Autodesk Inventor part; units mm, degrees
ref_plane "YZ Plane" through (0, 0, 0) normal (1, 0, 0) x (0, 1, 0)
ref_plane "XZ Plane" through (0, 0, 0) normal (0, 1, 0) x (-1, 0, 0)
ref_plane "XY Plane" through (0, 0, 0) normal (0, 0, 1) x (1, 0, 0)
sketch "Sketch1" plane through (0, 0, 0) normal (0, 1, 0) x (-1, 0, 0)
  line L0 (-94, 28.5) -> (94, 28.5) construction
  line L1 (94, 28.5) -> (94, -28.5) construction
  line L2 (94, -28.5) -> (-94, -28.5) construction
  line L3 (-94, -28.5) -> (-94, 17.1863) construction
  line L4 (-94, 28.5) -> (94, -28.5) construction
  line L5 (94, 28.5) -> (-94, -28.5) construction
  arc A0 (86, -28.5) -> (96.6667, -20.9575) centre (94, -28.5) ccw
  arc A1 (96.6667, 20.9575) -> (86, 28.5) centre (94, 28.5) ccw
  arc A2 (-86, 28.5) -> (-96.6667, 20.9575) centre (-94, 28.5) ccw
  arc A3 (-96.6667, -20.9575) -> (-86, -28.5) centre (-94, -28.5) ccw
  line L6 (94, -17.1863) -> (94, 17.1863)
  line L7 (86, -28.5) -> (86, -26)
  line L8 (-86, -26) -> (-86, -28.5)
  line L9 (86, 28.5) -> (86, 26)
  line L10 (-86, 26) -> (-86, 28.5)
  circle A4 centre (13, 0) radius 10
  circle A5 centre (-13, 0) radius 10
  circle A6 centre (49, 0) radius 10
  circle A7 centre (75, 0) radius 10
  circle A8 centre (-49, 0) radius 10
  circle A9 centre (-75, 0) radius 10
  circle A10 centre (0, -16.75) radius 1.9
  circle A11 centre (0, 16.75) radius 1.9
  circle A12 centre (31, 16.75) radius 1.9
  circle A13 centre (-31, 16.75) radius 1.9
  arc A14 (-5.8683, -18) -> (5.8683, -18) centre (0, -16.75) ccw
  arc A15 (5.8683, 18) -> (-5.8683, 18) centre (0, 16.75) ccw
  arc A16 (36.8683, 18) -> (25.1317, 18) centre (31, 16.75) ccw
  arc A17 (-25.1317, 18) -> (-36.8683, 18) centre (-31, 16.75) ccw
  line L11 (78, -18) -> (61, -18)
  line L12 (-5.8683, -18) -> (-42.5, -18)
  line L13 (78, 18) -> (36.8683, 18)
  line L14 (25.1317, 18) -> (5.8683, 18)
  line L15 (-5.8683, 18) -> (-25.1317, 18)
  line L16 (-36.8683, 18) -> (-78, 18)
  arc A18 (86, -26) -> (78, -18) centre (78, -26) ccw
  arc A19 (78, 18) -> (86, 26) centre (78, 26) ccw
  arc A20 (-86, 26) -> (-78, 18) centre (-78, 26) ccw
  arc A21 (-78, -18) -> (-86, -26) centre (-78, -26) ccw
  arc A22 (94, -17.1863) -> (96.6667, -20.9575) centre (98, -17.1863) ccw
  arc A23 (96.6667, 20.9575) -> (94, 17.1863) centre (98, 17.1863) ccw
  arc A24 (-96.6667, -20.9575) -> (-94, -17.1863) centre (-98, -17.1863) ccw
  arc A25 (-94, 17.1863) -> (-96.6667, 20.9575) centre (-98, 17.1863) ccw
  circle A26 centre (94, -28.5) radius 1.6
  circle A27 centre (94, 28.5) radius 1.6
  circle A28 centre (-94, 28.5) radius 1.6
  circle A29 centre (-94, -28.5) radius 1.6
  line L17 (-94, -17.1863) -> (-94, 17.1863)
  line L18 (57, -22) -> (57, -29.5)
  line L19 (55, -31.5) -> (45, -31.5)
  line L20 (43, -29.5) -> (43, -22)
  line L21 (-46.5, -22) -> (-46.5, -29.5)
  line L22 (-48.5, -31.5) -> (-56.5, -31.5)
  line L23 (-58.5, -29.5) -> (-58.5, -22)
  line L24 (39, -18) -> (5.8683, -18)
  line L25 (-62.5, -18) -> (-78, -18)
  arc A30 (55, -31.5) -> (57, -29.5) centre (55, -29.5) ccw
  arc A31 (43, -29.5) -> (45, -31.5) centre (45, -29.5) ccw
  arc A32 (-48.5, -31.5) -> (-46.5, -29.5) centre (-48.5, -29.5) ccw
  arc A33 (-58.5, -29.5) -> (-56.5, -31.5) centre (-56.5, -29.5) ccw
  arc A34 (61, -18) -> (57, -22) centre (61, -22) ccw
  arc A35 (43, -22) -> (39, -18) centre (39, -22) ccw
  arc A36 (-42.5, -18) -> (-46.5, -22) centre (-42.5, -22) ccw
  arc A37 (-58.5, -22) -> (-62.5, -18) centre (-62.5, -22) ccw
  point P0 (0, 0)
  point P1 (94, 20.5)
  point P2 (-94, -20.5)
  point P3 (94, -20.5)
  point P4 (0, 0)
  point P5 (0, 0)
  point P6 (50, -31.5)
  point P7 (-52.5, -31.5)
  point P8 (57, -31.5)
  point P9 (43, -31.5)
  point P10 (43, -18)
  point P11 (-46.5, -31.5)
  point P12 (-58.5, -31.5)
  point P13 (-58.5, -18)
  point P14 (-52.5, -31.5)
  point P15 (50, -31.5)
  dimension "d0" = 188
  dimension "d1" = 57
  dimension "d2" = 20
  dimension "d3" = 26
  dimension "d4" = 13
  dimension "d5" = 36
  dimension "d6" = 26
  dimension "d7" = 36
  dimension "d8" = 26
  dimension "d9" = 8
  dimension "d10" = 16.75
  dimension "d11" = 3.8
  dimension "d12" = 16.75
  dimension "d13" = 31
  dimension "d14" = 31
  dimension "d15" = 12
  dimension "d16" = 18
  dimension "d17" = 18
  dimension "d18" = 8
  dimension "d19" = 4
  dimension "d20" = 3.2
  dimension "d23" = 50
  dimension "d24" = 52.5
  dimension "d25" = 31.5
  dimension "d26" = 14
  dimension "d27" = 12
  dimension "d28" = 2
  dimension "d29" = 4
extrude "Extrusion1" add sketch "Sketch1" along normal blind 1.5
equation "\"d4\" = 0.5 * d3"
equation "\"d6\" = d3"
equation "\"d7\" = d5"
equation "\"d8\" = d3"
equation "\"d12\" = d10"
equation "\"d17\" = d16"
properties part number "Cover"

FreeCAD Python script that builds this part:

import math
import FreeCAD as App
import Part
import Sketcher

V = App.Vector
Q = App.Units.Quantity

doc = App.newDocument("Part")
body = doc.addObject("PartDesign::Body", "Body")

sketch1 = body.newObject("Sketcher::SketchObject", "Sketch")
sketch1.AttachmentSupport = (doc.getObject("XZ_Plane"), [""])
sketch1.MapMode = "FlatFace"
sketch1.addGeometry(Part.LineSegment(V(-86, -26, 0), V(-86, -28.5, 0)), False)
sketch1.addGeometry(Part.ArcOfCircle(Part.Circle(V(-94, -28.5, 0), V(0, 0, 1), 8), math.radians(109.47138), math.radians(360)), False)
sketch1.addGeometry(Part.ArcOfCircle(Part.Circle(V(-98, -17.1863, 0), V(0, 0, 1), 4), math.radians(-70.529057), math.radians(0)), False)
sketch1.addGeometry(Part.LineSegment(V(-94, -17.1863, 0), V(-94, 17.1863, 0)), False)
sketch1.addGeometry(Part.ArcOfCircle(Part.Circle(V(-98, 17.1863, 0), V(0, 0, 1), 3.999955), math.radians(0), math.radians(70.529057)), False)
sketch1.addGeometry(Part.ArcOfCircle(Part.Circle(V(-94, 28.5, 0), V(0, 0, 1), 8.000037), math.radians(0), math.radians(250.52862)), False)
sketch1.addGeometry(Part.LineSegment(V(-86, 28.5, 0), V(-86, 26, 0)), False)
sketch1.addGeometry(Part.ArcOfCircle(Part.Circle(V(-78, 26, 0), V(0, 0, 1), 8), math.radians(180), math.radians(270)), False)
sketch1.addGeometry(Part.LineSegment(V(-78, 18, 0), V(-36.8683, 18, 0)), False)
sketch1.addGeometry(Part.ArcOfCircle(Part.Circle(V(-31, 16.75, 0), V(0, 0, 1), 5.999954), math.radians(12.024793), math.radians(167.975207)), False)
sketch1.addGeometry(Part.LineSegment(V(-25.1317, 18, 0), V(-5.8683, 18, 0)), False)
sketch1.addGeometry(Part.ArcOfCircle(Part.Circle(V(0, 16.75, 0), V(0, 0, 1), 5.999954), math.radians(12.024793), math.radians(167.975207)), False)
sketch1.addGeometry(Part.LineSegment(V(5.8683, 18, 0), V(25.1317, 18, 0)), False)
sketch1.addGeometry(Part.ArcOfCircle(Part.Circle(V(31, 16.75, 0), V(0, 0, 1), 5.999954), math.radians(12.024793), math.radians(167.975207)), False)
sketch1.addGeometry(Part.LineSegment(V(36.8683, 18, 0), V(78, 18, 0)), False)
sketch1.addGeometry(Part.ArcOfCircle(Part.Circle(V(78, 26, 0), V(0, 0, 1), 8), math.radians(-90), math.radians(0)), False)
sketch1.addGeometry(Part.LineSegment(V(86, 26, 0), V(86, 28.5, 0)), False)
sketch1.addGeometry(Part.ArcOfCircle(Part.Circle(V(94, 28.5, 0), V(0, 0, 1), 8), math.radians(-70.52862), math.radians(180)), False)
sketch1.addGeometry(Part.ArcOfCircle(Part.Circle(V(98, 17.1863, 0), V(0, 0, 1), 4), math.radians(109.470943), math.radians(180)), False)
sketch1.addGeometry(Part.LineSegment(V(94, 17.1863, 0), V(94, -17.1863, 0)), False)
sketch1.addGeometry(Part.ArcOfCircle(Part.Circle(V(98, -17.1863, 0), V(0, 0, 1), 3.999955), math.radians(180), math.radians(250.529057)), False)
sketch1.addGeometry(Part.ArcOfCircle(Part.Circle(V(94, -28.5, 0), V(0, 0, 1), 8.000037), math.radians(180), math.radians(430.52862)), False)
sketch1.addGeometry(Part.LineSegment(V(86, -28.5, 0), V(86, -26, 0)), False)
sketch1.addGeometry(Part.ArcOfCircle(Part.Circle(V(78, -26, 0), V(0, 0, 1), 8), math.radians(0), math.radians(90)), False)
sketch1.addGeometry(Part.LineSegment(V(78, -18, 0), V(62.5, -18, 0)), False)
sketch1.addGeometry(Part.ArcOfCircle(Part.Circle(V(62.5, -22, 0), V(0, 0, 1), 4), math.radians(90), math.radians(180)), False)
sketch1.addGeometry(Part.LineSegment(V(58.5, -22, 0), V(58.5, -29.5, 0)), False)
sketch1.addGeometry(Part.ArcOfCircle(Part.Circle(V(56.5, -29.5, 0), V(0, 0, 1), 2), math.radians(-90), math.radians(0)), False)
sketch1.addGeometry(Part.LineSegment(V(56.5, -31.5, 0), V(48.5, -31.5, 0)), False)
sketch1.addGeometry(Part.ArcOfCircle(Part.Circle(V(48.5, -29.5, 0), V(0, 0, 1), 2), math.radians(180), math.radians(270)), False)
sketch1.addGeometry(Part.LineSegment(V(46.5, -29.5, 0), V(46.5, -22, 0)), False)
sketch1.addGeometry(Part.ArcOfCircle(Part.Circle(V(42.5, -22, 0), V(0, 0, 1), 4), math.radians(0), math.radians(90)), False)
sketch1.addGeometry(Part.LineSegment(V(42.5, -18, 0), V(5.8683, -18, 0)), False)
sketch1.addGeometry(Part.ArcOfCircle(Part.Circle(V(0, -16.75, 0), V(0, 0, 1), 5.999954), math.radians(-167.975207), math.radians(-12.024793)), False)
sketch1.addGeometry(Part.LineSegment(V(-5.8683, -18, 0), V(-39, -18, 0)), False)
sketch1.addGeometry(Part.ArcOfCircle(Part.Circle(V(-39, -22, 0), V(0, 0, 1), 4), math.radians(90), math.radians(180)), False)
sketch1.addGeometry(Part.LineSegment(V(-43, -22, 0), V(-43, -29.5, 0)), False)
sketch1.addGeometry(Part.ArcOfCircle(Part.Circle(V(-45, -29.5, 0), V(0, 0, 1), 2), math.radians(-90), math.radians(0)), False)
sketch1.addGeometry(Part.LineSegment(V(-45, -31.5, 0), V(-55, -31.5, 0)), False)
sketch1.addGeometry(Part.ArcOfCircle(Part.Circle(V(-55, -29.5, 0), V(0, 0, 1), 2), math.radians(180), math.radians(270)), False)
sketch1.addGeometry(Part.LineSegment(V(-57, -29.5, 0), V(-57, -22, 0)), False)
sketch1.addGeometry(Part.ArcOfCircle(Part.Circle(V(-61, -22, 0), V(0, 0, 1), 4), math.radians(0), math.radians(90)), False)
sketch1.addGeometry(Part.LineSegment(V(-61, -18, 0), V(-78, -18, 0)), False)
sketch1.addGeometry(Part.ArcOfCircle(Part.Circle(V(-78, -26, 0), V(0, 0, 1), 8), math.radians(90), math.radians(180)), False)
sketch1.addGeometry(Part.Circle(V(94, -28.5, 0), V(0, 0, 1), 1.6), False)
sketch1.addGeometry(Part.Circle(V(-94, -28.5, 0), V(0, 0, 1), 1.6), False)
sketch1.addGeometry(Part.Circle(V(0, -16.75, 0), V(0, 0, 1), 1.9), False)
sketch1.addGeometry(Part.Circle(V(75, 0, 0), V(0, 0, 1), 10), False)
sketch1.addGeometry(Part.Circle(V(49, 0, 0), V(0, 0, 1), 10), False)
sketch1.addGeometry(Part.Circle(V(13, 0, 0), V(0, 0, 1), 10), False)
sketch1.addGeometry(Part.Circle(V(31, 16.75, 0), V(0, 0, 1), 1.9), False)
sketch1.addGeometry(Part.Circle(V(94, 28.5, 0), V(0, 0, 1), 1.6), False)
sketch1.addGeometry(Part.Circle(V(-13, 0, 0), V(0, 0, 1), 10), False)
sketch1.addGeometry(Part.Circle(V(-49, 0, 0), V(0, 0, 1), 10), False)
sketch1.addGeometry(Part.Circle(V(0, 16.75, 0), V(0, 0, 1), 1.9), False)
sketch1.addGeometry(Part.Circle(V(-31, 16.75, 0), V(0, 0, 1), 1.9), False)
sketch1.addGeometry(Part.Circle(V(-75, 0, 0), V(0, 0, 1), 10), False)
sketch1.addGeometry(Part.Circle(V(-94, 28.5, 0), V(0, 0, 1), 1.6), False)
sketch1.addConstraint(Sketcher.Constraint("Tangent", 0, 2, 1, 2))
sketch1.addConstraint(Sketcher.Constraint("Tangent", 1, 1, 2, 1))
sketch1.addConstraint(Sketcher.Constraint("Tangent", 2, 2, 3, 1))
sketch1.addConstraint(Sketcher.Constraint("Tangent", 3, 2, 4, 1))
sketch1.addConstraint(Sketcher.Constraint("Tangent", 4, 2, 5, 2))
sketch1.addConstraint(Sketcher.Constraint("Tangent", 5, 1, 6, 1))
sketch1.addConstraint(Sketcher.Constraint("Tangent", 6, 2, 7, 1))
sketch1.addConstraint(Sketcher.Constraint("Tangent", 7, 2, 8, 1))
sketch1.addConstraint(Sketcher.Constraint("Coincident", 8, 2, 9, 2))
sketch1.addConstraint(Sketcher.Constraint("Coincident", 9, 1, 10, 1))
sketch1.addConstraint(Sketcher.Constraint("Coincident", 10, 2, 11, 2))
sketch1.addConstraint(Sketcher.Constraint("Coincident", 11, 1, 12, 1))
sketch1.addConstraint(Sketcher.Constraint("Coincident", 12, 2, 13, 2))
sketch1.addConstraint(Sketcher.Constraint("Coincident", 13, 1, 14, 1))
sketch1.addConstraint(Sketcher.Constraint("Tangent", 14, 2, 15, 1))
sketch1.addConstraint(Sketcher.Constraint("Tangent", 15, 2, 16, 1))
sketch1.addConstraint(Sketcher.Constraint("Tangent", 16, 2, 17, 2))
sketch1.addConstraint(Sketcher.Constraint("Tangent", 17, 1, 18, 1))
sketch1.addConstraint(Sketcher.Constraint("Tangent", 18, 2, 19, 1))
sketch1.addConstraint(Sketcher.Constraint("Tangent", 19, 2, 20, 1))
sketch1.addConstraint(Sketcher.Constraint("Tangent", 20, 2, 21, 2))
sketch1.addConstraint(Sketcher.Constraint("Tangent", 21, 1, 22, 1))
sketch1.addConstraint(Sketcher.Constraint("Tangent", 22, 2, 23, 1))
sketch1.addConstraint(Sketcher.Constraint("Tangent", 23, 2, 24, 1))
sketch1.addConstraint(Sketcher.Constraint("Tangent", 24, 2, 25, 1))
sketch1.addConstraint(Sketcher.Constraint("Tangent", 25, 2, 26, 1))
sketch1.addConstraint(Sketcher.Constraint("Tangent", 26, 2, 27, 2))
sketch1.addConstraint(Sketcher.Constraint("Tangent", 27, 1, 28, 1))
sketch1.addConstraint(Sketcher.Constraint("Tangent", 28, 2, 29, 2))
sketch1.addConstraint(Sketcher.Constraint("Tangent", 29, 1, 30, 1))
sketch1.addConstraint(Sketcher.Constraint("Tangent", 30, 2, 31, 1))
sketch1.addConstraint(Sketcher.Constraint("Tangent", 31, 2, 32, 1))
sketch1.addConstraint(Sketcher.Constraint("Coincident", 32, 2, 33, 2))
sketch1.addConstraint(Sketcher.Constraint("Coincident", 33, 1, 34, 1))
sketch1.addConstraint(Sketcher.Constraint("Tangent", 34, 2, 35, 1))
sketch1.addConstraint(Sketcher.Constraint("Tangent", 35, 2, 36, 1))
sketch1.addConstraint(Sketcher.Constraint("Tangent", 36, 2, 37, 2))
sketch1.addConstraint(Sketcher.Constraint("Tangent", 37, 1, 38, 1))
sketch1.addConstraint(Sketcher.Constraint("Tangent", 38, 2, 39, 2))
sketch1.addConstraint(Sketcher.Constraint("Tangent", 39, 1, 40, 1))
sketch1.addConstraint(Sketcher.Constraint("Tangent", 40, 2, 41, 1))
sketch1.addConstraint(Sketcher.Constraint("Tangent", 41, 2, 42, 1))
sketch1.addConstraint(Sketcher.Constraint("Tangent", 42, 2, 43, 1))
sketch1.addConstraint(Sketcher.Constraint("Tangent", 43, 2, 0, 1))
sketch1.addConstraint(Sketcher.Constraint("Vertical", 0))
sketch1.addConstraint(Sketcher.Constraint("Vertical", 3))
sketch1.addConstraint(Sketcher.Constraint("Vertical", 6))
sketch1.addConstraint(Sketcher.Constraint("Horizontal", 8))
sketch1.addConstraint(Sketcher.Constraint("Horizontal", 10))
sketch1.addConstraint(Sketcher.Constraint("Horizontal", 12))
sketch1.addConstraint(Sketcher.Constraint("Horizontal", 14))
sketch1.addConstraint(Sketcher.Constraint("Vertical", 16))
sketch1.addConstraint(Sketcher.Constraint("Vertical", 19))
sketch1.addConstraint(Sketcher.Constraint("Vertical", 22))
sketch1.addConstraint(Sketcher.Constraint("Horizontal", 24))
sketch1.addConstraint(Sketcher.Constraint("Vertical", 26))
sketch1.addConstraint(Sketcher.Constraint("Horizontal", 28))
sketch1.addConstraint(Sketcher.Constraint("Vertical", 30))
sketch1.addConstraint(Sketcher.Constraint("Horizontal", 32))
sketch1.addConstraint(Sketcher.Constraint("Horizontal", 34))
sketch1.addConstraint(Sketcher.Constraint("Vertical", 36))
sketch1.addConstraint(Sketcher.Constraint("Horizontal", 38))
sketch1.addConstraint(Sketcher.Constraint("Vertical", 40))
sketch1.addConstraint(Sketcher.Constraint("Horizontal", 42))
sketch1.addConstraint(Sketcher.Constraint("Coincident", 44, 3, 21, 3))
sketch1.addConstraint(Sketcher.Constraint("Coincident", 45, 3, 1, 3))
sketch1.addConstraint(Sketcher.Constraint("Coincident", 46, 3, 33, 3))
sketch1.addConstraint(Sketcher.Constraint("Coincident", 50, 3, 13, 3))
sketch1.addConstraint(Sketcher.Constraint("Coincident", 51, 3, 17, 3))
sketch1.addConstraint(Sketcher.Constraint("Coincident", 54, 3, 11, 3))
sketch1.addConstraint(Sketcher.Constraint("Coincident", 55, 3, 9, 3))
sketch1.addConstraint(Sketcher.Constraint("Coincident", 57, 3, 5, 3))
sketch1.addConstraint(Sketcher.Constraint("Equal", 2, 4))
sketch1.addConstraint(Sketcher.Constraint("Equal", 1, 5))
sketch1.addConstraint(Sketcher.Constraint("Equal", 5, 7))
sketch1.addConstraint(Sketcher.Constraint("Equal", 9, 11))
sketch1.addConstraint(Sketcher.Constraint("Equal", 11, 13))
sketch1.addConstraint(Sketcher.Constraint("Equal", 7, 15))
sketch1.addConstraint(Sketcher.Constraint("Equal", 15, 17))
sketch1.addConstraint(Sketcher.Constraint("Equal", 4, 18))
sketch1.addConstraint(Sketcher.Constraint("Equal", 18, 20))
sketch1.addConstraint(Sketcher.Constraint("Equal", 17, 21))
sketch1.addConstraint(Sketcher.Constraint("Equal", 21, 23))
sketch1.addConstraint(Sketcher.Constraint("Equal", 20, 25))
sketch1.addConstraint(Sketcher.Constraint("Equal", 27, 29))
sketch1.addConstraint(Sketcher.Constraint("Equal", 25, 31))
sketch1.addConstraint(Sketcher.Constraint("Equal", 13, 33))
sketch1.addConstraint(Sketcher.Constraint("Equal", 31, 35))
sketch1.addConstraint(Sketcher.Constraint("Equal", 29, 37))
sketch1.addConstraint(Sketcher.Constraint("Equal", 37, 39))
sketch1.addConstraint(Sketcher.Constraint("Equal", 35, 41))
sketch1.addConstraint(Sketcher.Constraint("Equal", 23, 43))
sketch1.addConstraint(Sketcher.Constraint("Equal", 44, 45))
sketch1.addConstraint(Sketcher.Constraint("Equal", 47, 48))
sketch1.addConstraint(Sketcher.Constraint("Equal", 48, 49))
sketch1.addConstraint(Sketcher.Constraint("Equal", 46, 50))
sketch1.addConstraint(Sketcher.Constraint("Equal", 45, 51))
sketch1.addConstraint(Sketcher.Constraint("Equal", 49, 52))
sketch1.addConstraint(Sketcher.Constraint("Equal", 52, 53))
sketch1.addConstraint(Sketcher.Constraint("Equal", 50, 54))
sketch1.addConstraint(Sketcher.Constraint("Equal", 54, 55))
sketch1.addConstraint(Sketcher.Constraint("Equal", 53, 56))
sketch1.addConstraint(Sketcher.Constraint("Equal", 51, 57))
sketch1.addConstraint(Sketcher.Constraint("Symmetric", 1, 3, 17, 3, -1, 1))
sketch1.addConstraint(Sketcher.Constraint("Symmetric", 4, 3, 20, 3, -1, 1))
sketch1.addConstraint(Sketcher.Constraint("Symmetric", 7, 3, 23, 3, -1, 1))
sketch1.addConstraint(Sketcher.Constraint("Symmetric", 11, 3, 33, 3, -1, 1))
sketch1.addConstraint(Sketcher.Constraint("Symmetric", 49, 3, 52, 3, -1, 1))
sketch1.addConstraint(Sketcher.Constraint("Symmetric", 48, 3, 53, 3, -1, 1))
sketch1.addConstraint(Sketcher.Constraint("Symmetric", 47, 3, 56, 3, -1, 1))
sketch1.addConstraint(Sketcher.Constraint("Symmetric", 9, 3, 13, 3, -2))
sketch1.addConstraint(Sketcher.Constraint("Symmetric", 7, 3, 15, 3, -2))
sketch1.addConstraint(Sketcher.Constraint("Symmetric", 10, 2, 11, 1, -2))
sketch1.addConstraint(Sketcher.Constraint("PointOnObject", 47, 3, -1))
sketch1.addConstraint(Sketcher.Constraint("PointOnObject", 48, 3, -1))
sketch1.addConstraint(Sketcher.Constraint("PointOnObject", 49, 3, -1))
sketch1.addConstraint(Sketcher.Constraint("Horizontal", 9, 3, 11, 3))
sketch1.addConstraint(Sketcher.Constraint("Horizontal", 5, 3, 17, 3))
sketch1.addConstraint(Sketcher.Constraint("Horizontal", 25, 3, 31, 3))
sketch1.addConstraint(Sketcher.Constraint("Horizontal", 31, 3, 35, 3))
sketch1.addConstraint(Sketcher.Constraint("Horizontal", 29, 3, 37, 3))
sketch1.addConstraint(Sketcher.Constraint("Horizontal", 35, 3, 41, 3))
sketch1.addConstraint(Sketcher.Constraint("Horizontal", 8, 2, 9, 1))
sketch1.addConstraint(Sketcher.Constraint("Vertical", 57, 3, 2, 2))
sketch1.addConstraint(Sketcher.Constraint("Diameter", 47, Q("20 mm")))
sketch1.addConstraint(Sketcher.Constraint("Radius", 1, Q("8 mm")))
sketch1.addConstraint(Sketcher.Constraint("Radius", 2, Q("4 mm")))
sketch1.addConstraint(Sketcher.Constraint("Radius", 9, Q("6 mm")))
sketch1.addConstraint(Sketcher.Constraint("Radius", 27, Q("2 mm")))
sketch1.addConstraint(Sketcher.Constraint("Diameter", 44, Q("3.2 mm")))
sketch1.addConstraint(Sketcher.Constraint("Diameter", 46, Q("3.8 mm")))
sketch1.addConstraint(Sketcher.Constraint("DistanceX", 28, 2, 28, 1, Q("8 mm")))
sketch1.addConstraint(Sketcher.Constraint("DistanceY", -1, 1, 7, 3, Q("26 mm")))
sketch1.addConstraint(Sketcher.Constraint("DistanceX", 9, 3, -1, 1, Q("31 mm")))
sketch1.addConstraint(Sketcher.Constraint("DistanceX", -1, 1, 49, 3, Q("13 mm")))
sketch1.addConstraint(Sketcher.Constraint("DistanceX", 39, 1, -1, 1, Q("57 mm")))
sketch1.addConstraint(Sketcher.Constraint("DistanceY", 27, 1, -1, 1, Q("31.5 mm")))
sketch1.addConstraint(Sketcher.Constraint("DistanceX", 38, 2, 38, 1, Q("10 mm")))
sketch1.addConstraint(Sketcher.Constraint("DistanceX", 42, 2, 42, 1, Q("17 mm")))
sketch1.addConstraint(Sketcher.Constraint("DistanceY", -1, 1, 9, 3, Q("16.75 mm")))
sketch1.addConstraint(Sketcher.Constraint("DistanceX", 24, 2, 24, 1, Q("15.5 mm")))
sketch1.addConstraint(Sketcher.Constraint("DistanceY", 0, 2, 0, 1, Q("2.5 mm")))
sketch1.addConstraint(Sketcher.Constraint("DistanceX", -1, 1, 47, 3, Q("75 mm")))
sketch1.addConstraint(Sketcher.Constraint("DistanceX", -1, 1, 48, 3, Q("49 mm")))
pad1 = body.newObject("PartDesign::Pad", "Pad")
pad1.Profile = sketch1
pad1.Length = 1.5
pad1.Reversed = True

doc.recompute()
